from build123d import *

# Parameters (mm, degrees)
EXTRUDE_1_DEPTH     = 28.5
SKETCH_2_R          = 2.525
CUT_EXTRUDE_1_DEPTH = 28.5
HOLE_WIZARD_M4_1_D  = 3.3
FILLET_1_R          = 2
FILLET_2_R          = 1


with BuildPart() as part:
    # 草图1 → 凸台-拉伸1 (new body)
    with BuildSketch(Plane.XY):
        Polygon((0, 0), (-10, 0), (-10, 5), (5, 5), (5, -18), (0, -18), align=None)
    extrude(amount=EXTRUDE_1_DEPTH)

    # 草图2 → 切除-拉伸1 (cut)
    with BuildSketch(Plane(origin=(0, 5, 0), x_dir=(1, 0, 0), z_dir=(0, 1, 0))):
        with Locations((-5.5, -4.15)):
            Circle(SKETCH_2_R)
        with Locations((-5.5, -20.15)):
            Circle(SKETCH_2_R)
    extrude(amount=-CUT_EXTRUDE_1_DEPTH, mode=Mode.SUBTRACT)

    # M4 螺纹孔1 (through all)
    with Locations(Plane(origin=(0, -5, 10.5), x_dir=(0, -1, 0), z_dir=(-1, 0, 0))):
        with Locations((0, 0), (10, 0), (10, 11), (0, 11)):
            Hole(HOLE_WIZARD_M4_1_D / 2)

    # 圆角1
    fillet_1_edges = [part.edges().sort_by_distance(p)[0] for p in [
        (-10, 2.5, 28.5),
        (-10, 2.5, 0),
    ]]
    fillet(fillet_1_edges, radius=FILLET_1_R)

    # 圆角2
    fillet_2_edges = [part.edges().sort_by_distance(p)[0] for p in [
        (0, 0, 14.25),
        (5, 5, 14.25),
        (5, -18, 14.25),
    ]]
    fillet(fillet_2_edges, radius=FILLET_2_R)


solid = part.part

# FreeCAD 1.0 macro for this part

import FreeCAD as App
import Part
import Sketcher

V = App.Vector
Q = App.Units.Quantity


def edges_at(feature, points):
    """Names of the edges that pass closest to the given points."""
    edges = feature.Shape.Edges
    near = lambda p: min(range(len(edges)), key=lambda i: edges[i].distToShape(Part.Vertex(*p))[0])
    return sorted({f"Edge{near(p) + 1}" for p in points})

doc = App.newDocument("Part")
params = doc.addObject("Spreadsheet::Sheet", "Params")
for row, (alias, value) in enumerate([
    ("sketch1_width", "10 mm"),
    ("sketch1_width2", "5 mm"),
    ("sketch1_height", "18 mm"),
    ("pad1_length", "28.5 mm"),
    ("sketch2_diameter", "5.05 mm"),
    ("pocket1_length", "28.5 mm"),
    ("sketch3_diameter", "3.3 mm"),
    ("hole_diameter", "3.3 mm"),
    ("fillet_radius", "2 mm"),
    ("fillet2_radius", "1 mm"),
], start=1):
    params.set(f"A{row}", alias)
    params.set(f"B{row}", "=" + value)
    params.setAlias(f"B{row}", alias)

body = doc.addObject("PartDesign::Body", "Body")

sketch1 = body.newObject("Sketcher::SketchObject", "Sketch")
sketch1.AttachmentSupport = (doc.getObject("XY_Plane"), [""])
sketch1.MapMode = "FlatFace"
sketch1.addGeometry([
    Part.LineSegment(V(-10, 0, 0), V(0, 0, 0)),
    Part.LineSegment(V(0, 0, 0), V(0, -18, 0)),
    Part.LineSegment(V(0, -18, 0), V(5, -18, 0)),
    Part.LineSegment(V(5, -18, 0), V(5, 5, 0)),
    Part.LineSegment(V(5, 5, 0), V(-10, 5, 0)),
    Part.LineSegment(V(-10, 5, 0), V(-10, 0, 0)),
], False)
sketch1.addConstraint([
    Sketcher.Constraint("Coincident", 0, 2, 1, 1),
    Sketcher.Constraint("Coincident", 1, 2, 2, 1),
    Sketcher.Constraint("Coincident", 2, 2, 3, 1),
    Sketcher.Constraint("Coincident", 3, 2, 4, 1),
    Sketcher.Constraint("Coincident", 4, 2, 5, 1),
    Sketcher.Constraint("Coincident", 5, 2, 0, 1),
    Sketcher.Constraint("Horizontal", 0),
    Sketcher.Constraint("Vertical", 1),
    Sketcher.Constraint("Horizontal", 2),
    Sketcher.Constraint("Vertical", 3),
    Sketcher.Constraint("Horizontal", 4),
    Sketcher.Constraint("Vertical", 5),
    Sketcher.Constraint("Coincident", 0, 2, -1, 1),
    Sketcher.Constraint("Equal", 2, 5),
    Sketcher.Constraint("DistanceX", 0, 1, 0, 2, Q("10 mm")),
    Sketcher.Constraint("DistanceX", 2, 1, 2, 2, Q("5 mm")),
    Sketcher.Constraint("DistanceY", 1, 2, 1, 1, Q("18 mm")),
])
sketch1.setExpression("Constraints[14]", "Params.sketch1_width")
sketch1.setExpression("Constraints[15]", "Params.sketch1_width2")
sketch1.setExpression("Constraints[16]", "Params.sketch1_height")
pad1 = body.newObject("PartDesign::Pad", "Pad")
pad1.Profile = sketch1
pad1.setExpression("Length", "Params.pad1_length")

sketch2 = body.newObject("Sketcher::SketchObject", "Sketch001")
sketch2.AttachmentSupport = (doc.getObject("XZ_Plane"), [""])
sketch2.MapMode = "FlatFace"
sketch2.AttachmentOffset = App.Placement(V(0, 0, -5), App.Rotation())
sketch2.addGeometry([
    Part.Circle(V(-5.5, 4.2, 0), V(0, 0, 1), 2.5),
    Part.Circle(V(-5.5, 20.1, 0), V(0, 0, 1), 2.5),
], False)
sketch2.addConstraint([
    Sketcher.Constraint("Equal", 0, 1),
    Sketcher.Constraint("Vertical", 0, 3, 1, 3),
    Sketcher.Constraint("Diameter", 0, Q("5.05 mm")),
    Sketcher.Constraint("DistanceY", 0, 3, 1, 3, Q("16 mm")),
    Sketcher.Constraint("DistanceX", 0, 3, -1, 1, Q("5.5 mm")),
    Sketcher.Constraint("DistanceY", -1, 1, 0, 3, Q("4.15 mm")),
])
sketch2.setExpression("Constraints[2]", "Params.sketch2_diameter")
pocket1 = body.newObject("PartDesign::Pocket", "Pocket")
pocket1.Profile = sketch2
pocket1.setExpression("Length", "Params.pocket1_length")
pocket1.Reversed = True

sketch3 = body.newObject("Sketcher::SketchObject", "Sketch002")
sketch3.AttachmentSupport = (doc.getObject("YZ_Plane"), [""])
sketch3.MapMode = "FlatFace"
sketch3.addGeometry([
    Part.Circle(V(-5, 10.5, 0), V(0, 0, 1), 1.6),
    Part.Circle(V(-15, 10.5, 0), V(0, 0, 1), 1.6),
    Part.Circle(V(-15, 21.5, 0), V(0, 0, 1), 1.6),
    Part.Circle(V(-5, 21.5, 0), V(0, 0, 1), 1.6),
], False)
sketch3.addConstraint([
    Sketcher.Constraint("Equal", 0, 1),
    Sketcher.Constraint("Equal", 1, 2),
    Sketcher.Constraint("Equal", 2, 3),
    Sketcher.Constraint("Horizontal", 0, 3, 1, 3),
    Sketcher.Constraint("Horizontal", 2, 3, 3, 3),
    Sketcher.Constraint("Vertical", 1, 3, 2, 3),
    Sketcher.Constraint("Vertical", 0, 3, 3, 3),
    Sketcher.Constraint("Diameter", 0, Q("3.3 mm")),
    Sketcher.Constraint("DistanceX", 0, 3, -1, 1, Q("5 mm")),
    Sketcher.Constraint("DistanceX", 1, 3, -1, 1, Q("15 mm")),
    Sketcher.Constraint("DistanceY", 1, 3, 2, 3, Q("11 mm")),
    Sketcher.Constraint("DistanceY", -1, 1, 0, 3, Q("10.5 mm")),
])
sketch3.setExpression("Constraints[7]", "Params.sketch3_diameter")
doc.recompute()
hole = body.newObject("PartDesign::Hole", "Hole")
hole.Profile = sketch3
hole.ThreadType = "None"
hole.setExpression("Diameter", "Params.hole_diameter")
hole.DepthType = "ThroughAll"
hole.Reversed = True
doc.recompute()

fillet = body.newObject("PartDesign::Fillet", "Fillet")
fillet.Base = (hole, edges_at(hole, [(-10, 2.5, 28.5), (-10, 2.5, 0)]))
fillet.setExpression("Radius", "Params.fillet_radius")
doc.recompute()

fillet2 = body.newObject("PartDesign::Fillet", "Fillet001")
fillet2.Base = (fillet, edges_at(fillet, [(0, 0, 14.25), (5, 5, 14.25), (5, -18, 14.25)]))
fillet2.setExpression("Radius", "Params.fillet2_radius")

doc.recompute()
